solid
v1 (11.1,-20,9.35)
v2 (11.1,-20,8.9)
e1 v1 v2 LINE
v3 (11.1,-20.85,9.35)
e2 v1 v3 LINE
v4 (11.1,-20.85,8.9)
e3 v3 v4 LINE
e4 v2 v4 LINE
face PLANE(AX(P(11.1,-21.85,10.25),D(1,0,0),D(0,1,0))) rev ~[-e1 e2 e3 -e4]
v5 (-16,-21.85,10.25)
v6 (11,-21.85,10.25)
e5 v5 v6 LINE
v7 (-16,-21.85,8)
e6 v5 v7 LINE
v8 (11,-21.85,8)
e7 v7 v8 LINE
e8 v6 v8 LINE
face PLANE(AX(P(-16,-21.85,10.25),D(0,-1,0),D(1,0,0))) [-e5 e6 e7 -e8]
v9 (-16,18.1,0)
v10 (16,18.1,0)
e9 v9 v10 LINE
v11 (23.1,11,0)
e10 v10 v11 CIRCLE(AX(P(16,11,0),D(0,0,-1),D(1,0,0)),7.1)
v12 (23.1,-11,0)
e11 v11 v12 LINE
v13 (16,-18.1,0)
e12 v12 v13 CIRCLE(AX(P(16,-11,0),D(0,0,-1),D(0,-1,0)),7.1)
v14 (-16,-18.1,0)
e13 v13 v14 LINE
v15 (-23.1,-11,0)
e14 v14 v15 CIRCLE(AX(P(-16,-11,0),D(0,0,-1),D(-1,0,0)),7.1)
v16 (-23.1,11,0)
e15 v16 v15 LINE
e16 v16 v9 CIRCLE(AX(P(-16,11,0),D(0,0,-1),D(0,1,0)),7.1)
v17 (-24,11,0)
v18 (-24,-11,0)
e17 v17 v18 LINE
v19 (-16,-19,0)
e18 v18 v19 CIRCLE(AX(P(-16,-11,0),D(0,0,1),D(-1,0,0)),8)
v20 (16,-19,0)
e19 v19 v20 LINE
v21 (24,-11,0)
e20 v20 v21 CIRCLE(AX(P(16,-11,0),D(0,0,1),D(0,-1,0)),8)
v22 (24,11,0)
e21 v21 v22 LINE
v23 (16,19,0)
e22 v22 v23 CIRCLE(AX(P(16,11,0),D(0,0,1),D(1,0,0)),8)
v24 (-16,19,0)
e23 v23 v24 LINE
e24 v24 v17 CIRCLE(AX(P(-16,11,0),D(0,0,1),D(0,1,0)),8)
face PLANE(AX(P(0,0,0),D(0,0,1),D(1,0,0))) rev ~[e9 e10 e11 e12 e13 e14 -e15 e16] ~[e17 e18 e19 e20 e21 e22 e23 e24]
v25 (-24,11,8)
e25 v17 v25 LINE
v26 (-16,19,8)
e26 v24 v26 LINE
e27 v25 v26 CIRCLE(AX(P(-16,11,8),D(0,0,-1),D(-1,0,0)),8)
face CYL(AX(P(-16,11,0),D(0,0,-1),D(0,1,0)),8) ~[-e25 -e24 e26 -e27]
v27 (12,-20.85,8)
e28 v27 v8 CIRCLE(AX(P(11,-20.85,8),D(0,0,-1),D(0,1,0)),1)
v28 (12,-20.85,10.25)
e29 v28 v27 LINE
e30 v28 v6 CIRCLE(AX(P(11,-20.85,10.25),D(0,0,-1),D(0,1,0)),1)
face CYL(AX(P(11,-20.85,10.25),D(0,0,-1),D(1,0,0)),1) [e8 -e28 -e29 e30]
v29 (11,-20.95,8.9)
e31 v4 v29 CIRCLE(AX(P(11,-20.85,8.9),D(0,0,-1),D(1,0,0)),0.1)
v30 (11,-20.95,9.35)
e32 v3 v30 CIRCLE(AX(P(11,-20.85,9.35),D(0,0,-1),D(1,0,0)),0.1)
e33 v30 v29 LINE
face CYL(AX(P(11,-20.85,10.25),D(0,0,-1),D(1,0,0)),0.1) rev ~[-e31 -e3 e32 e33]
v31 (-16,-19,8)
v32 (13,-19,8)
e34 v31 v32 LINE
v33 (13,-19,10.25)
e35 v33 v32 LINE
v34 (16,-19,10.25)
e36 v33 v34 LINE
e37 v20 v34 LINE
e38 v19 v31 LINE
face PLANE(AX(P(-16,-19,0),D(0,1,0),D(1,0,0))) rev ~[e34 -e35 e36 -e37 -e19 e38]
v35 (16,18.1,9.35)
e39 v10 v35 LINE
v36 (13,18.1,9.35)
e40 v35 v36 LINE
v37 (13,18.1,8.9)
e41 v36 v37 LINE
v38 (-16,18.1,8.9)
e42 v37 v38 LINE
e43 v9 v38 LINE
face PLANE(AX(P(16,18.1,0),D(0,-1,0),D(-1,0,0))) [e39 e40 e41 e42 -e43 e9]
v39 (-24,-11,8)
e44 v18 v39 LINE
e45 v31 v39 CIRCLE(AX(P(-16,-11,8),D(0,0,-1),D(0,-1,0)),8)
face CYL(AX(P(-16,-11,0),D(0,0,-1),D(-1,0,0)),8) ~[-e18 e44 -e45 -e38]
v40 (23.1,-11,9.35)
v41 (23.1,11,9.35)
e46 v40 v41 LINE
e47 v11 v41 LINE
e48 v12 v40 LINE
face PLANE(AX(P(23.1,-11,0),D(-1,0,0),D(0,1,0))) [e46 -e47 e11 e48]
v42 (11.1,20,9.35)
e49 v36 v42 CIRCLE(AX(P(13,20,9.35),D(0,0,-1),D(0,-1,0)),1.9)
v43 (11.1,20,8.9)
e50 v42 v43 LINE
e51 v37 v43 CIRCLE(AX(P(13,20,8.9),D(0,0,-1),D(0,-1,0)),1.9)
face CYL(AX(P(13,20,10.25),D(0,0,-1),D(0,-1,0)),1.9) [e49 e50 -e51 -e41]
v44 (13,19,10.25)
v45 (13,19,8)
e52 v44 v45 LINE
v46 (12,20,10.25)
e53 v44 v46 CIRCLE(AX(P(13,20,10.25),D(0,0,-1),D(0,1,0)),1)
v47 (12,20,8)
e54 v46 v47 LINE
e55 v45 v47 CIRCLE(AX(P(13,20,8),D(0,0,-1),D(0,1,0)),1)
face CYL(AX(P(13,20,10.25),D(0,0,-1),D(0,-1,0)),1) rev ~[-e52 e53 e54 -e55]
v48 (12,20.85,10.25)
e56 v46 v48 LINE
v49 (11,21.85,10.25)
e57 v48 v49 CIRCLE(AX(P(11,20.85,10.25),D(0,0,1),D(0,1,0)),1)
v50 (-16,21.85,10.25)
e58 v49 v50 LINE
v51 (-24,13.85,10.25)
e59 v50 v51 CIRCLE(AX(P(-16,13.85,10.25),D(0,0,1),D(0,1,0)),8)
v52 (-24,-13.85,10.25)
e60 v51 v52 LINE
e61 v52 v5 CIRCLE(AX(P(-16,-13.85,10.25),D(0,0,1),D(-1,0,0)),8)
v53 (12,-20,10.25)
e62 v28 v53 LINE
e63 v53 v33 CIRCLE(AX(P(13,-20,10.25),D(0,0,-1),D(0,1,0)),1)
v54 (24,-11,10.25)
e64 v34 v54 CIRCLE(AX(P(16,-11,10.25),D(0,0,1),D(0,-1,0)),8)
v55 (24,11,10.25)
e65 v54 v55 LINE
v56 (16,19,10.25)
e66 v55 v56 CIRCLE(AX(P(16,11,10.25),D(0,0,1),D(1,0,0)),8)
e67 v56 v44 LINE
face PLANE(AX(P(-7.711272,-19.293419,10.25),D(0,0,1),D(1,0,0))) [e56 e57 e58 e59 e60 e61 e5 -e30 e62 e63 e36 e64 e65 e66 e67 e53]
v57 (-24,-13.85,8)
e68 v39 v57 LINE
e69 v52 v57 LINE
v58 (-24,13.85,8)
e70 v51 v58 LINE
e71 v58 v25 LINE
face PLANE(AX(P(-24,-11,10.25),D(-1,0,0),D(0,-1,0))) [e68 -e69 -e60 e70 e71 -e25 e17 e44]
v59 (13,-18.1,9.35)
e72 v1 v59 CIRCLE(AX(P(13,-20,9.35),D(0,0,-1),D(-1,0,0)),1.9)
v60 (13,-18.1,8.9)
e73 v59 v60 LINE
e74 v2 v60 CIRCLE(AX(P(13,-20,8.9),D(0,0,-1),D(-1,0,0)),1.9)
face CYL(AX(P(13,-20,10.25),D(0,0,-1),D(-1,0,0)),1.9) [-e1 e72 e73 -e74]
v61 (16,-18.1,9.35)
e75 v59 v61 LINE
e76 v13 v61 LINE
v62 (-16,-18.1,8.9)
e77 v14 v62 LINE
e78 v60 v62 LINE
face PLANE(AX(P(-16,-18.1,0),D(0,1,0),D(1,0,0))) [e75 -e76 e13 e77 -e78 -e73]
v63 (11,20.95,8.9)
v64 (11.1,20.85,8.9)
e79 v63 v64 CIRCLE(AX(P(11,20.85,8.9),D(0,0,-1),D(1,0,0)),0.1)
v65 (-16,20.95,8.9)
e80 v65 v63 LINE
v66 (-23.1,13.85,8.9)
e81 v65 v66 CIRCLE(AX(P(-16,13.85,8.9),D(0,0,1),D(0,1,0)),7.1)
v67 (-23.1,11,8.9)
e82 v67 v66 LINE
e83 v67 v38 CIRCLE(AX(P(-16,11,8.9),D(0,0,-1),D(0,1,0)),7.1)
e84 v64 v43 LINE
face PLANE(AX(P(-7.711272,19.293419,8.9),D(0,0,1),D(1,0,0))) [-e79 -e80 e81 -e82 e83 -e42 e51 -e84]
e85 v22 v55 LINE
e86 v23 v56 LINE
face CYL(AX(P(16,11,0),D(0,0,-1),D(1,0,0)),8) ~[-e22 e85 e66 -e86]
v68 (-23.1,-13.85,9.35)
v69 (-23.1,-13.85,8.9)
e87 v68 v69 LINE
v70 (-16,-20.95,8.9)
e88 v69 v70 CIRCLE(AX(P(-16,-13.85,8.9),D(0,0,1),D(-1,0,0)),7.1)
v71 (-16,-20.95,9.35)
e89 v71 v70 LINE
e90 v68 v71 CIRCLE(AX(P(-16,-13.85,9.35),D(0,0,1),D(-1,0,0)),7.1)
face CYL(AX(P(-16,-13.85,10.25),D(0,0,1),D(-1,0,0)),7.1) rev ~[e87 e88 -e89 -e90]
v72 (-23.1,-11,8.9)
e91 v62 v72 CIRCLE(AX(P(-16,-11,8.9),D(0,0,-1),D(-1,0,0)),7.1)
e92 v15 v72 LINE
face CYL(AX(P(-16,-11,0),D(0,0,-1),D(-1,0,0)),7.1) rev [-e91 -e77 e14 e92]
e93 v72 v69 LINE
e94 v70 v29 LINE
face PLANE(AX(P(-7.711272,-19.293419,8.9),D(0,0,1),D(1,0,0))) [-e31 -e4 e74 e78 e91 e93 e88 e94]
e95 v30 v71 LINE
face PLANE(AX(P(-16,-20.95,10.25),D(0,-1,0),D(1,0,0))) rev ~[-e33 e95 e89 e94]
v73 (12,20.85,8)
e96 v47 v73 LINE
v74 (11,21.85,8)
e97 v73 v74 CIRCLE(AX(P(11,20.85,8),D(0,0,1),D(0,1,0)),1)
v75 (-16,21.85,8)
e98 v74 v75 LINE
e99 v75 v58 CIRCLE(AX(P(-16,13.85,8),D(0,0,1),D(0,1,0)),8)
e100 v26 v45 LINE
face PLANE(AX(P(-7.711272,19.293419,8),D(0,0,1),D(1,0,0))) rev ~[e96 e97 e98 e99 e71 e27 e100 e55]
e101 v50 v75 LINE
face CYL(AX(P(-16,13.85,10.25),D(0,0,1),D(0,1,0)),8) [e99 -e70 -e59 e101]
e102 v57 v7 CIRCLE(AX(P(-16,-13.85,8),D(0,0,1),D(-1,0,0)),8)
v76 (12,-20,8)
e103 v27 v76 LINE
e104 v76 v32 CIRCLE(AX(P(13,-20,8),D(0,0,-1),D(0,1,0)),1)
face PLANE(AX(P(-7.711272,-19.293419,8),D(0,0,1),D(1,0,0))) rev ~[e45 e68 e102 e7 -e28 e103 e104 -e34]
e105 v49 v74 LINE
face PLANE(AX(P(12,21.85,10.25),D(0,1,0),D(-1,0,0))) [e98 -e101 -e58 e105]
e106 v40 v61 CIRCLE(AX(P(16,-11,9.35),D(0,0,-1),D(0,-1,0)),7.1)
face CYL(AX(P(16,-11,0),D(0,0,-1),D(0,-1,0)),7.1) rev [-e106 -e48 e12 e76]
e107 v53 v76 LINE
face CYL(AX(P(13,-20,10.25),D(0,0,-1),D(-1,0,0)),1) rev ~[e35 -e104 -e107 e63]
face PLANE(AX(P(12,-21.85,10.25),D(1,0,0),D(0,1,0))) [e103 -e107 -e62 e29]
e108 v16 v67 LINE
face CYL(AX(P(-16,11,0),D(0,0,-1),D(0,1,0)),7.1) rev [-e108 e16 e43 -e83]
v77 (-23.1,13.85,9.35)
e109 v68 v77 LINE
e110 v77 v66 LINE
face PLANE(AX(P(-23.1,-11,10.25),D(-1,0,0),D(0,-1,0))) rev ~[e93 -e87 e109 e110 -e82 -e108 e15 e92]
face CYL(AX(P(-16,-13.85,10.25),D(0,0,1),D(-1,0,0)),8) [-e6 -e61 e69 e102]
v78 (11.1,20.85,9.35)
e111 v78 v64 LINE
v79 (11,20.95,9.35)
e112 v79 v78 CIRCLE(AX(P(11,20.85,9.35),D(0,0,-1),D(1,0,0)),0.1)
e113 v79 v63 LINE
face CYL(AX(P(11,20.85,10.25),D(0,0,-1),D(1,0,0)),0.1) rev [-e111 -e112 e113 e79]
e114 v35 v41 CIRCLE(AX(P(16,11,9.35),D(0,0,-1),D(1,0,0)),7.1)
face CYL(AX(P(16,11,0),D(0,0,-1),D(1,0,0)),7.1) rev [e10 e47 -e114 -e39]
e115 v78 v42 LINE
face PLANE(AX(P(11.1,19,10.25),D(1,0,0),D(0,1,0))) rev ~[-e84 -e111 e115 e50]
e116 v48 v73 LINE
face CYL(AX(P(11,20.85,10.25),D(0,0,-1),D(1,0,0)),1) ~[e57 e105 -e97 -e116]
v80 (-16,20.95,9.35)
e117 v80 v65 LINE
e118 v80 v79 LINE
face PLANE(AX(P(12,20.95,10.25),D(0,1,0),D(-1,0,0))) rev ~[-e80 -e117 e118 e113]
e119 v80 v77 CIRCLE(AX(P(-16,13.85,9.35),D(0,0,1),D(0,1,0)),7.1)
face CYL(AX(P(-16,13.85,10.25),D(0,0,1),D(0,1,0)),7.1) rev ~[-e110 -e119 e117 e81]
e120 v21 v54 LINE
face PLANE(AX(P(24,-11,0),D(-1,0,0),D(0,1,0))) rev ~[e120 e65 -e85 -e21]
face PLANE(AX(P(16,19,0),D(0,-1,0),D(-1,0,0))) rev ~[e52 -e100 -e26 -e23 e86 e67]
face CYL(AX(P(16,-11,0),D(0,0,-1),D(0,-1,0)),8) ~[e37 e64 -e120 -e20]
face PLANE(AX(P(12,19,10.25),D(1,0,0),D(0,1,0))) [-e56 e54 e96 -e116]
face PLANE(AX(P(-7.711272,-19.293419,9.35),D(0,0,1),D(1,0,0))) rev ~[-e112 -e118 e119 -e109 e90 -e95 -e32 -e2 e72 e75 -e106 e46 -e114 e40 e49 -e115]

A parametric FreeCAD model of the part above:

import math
import FreeCAD as App
import Part
import Sketcher
from FreeCAD import Vector


def edges_at(feature, points):
    """Names of the edges that pass closest to the given points."""
    edges = feature.Shape.Edges
    near = lambda p: min(range(len(edges)), key=lambda i: edges[i].distToShape(Part.Vertex(*p))[0])
    return sorted({f"Edge{near(p) + 1}" for p in points})


def faces_at(feature, points):
    """Names of the faces that lie closest to the given points."""
    faces = feature.Shape.Faces
    near = lambda p: min(range(len(faces)), key=lambda i: faces[i].distToShape(Part.Vertex(*p))[0])
    return sorted({f"Face{near(p) + 1}" for p in points})

doc = App.newDocument("Part")
body = doc.addObject("PartDesign::Body", "Body")

# Sketch on XY plane
sketch1 = body.newObject("Sketcher::SketchObject", "Sketch")
sketch1.AttachmentSupport = (doc.getObject("XY_Plane"), [""])
sketch1.MapMode = "FlatFace"
sketch1.addGeometry(Part.LineSegment(Vector(16, 19, 0), Vector(-16, 19, 0)), False)
sketch1.addGeometry(Part.ArcOfCircle(Part.Circle(Vector(-16, 11, 0), Vector(0, 0, 1), 8), math.radians(90), math.radians(180)), False)
sketch1.addGeometry(Part.LineSegment(Vector(-24, 11, 0), Vector(-24, -11, 0)), False)
sketch1.addGeometry(Part.ArcOfCircle(Part.Circle(Vector(-16, -11, 0), Vector(0, 0, 1), 8), math.radians(180), math.radians(270)), False)
sketch1.addGeometry(Part.LineSegment(Vector(-16, -19, 0), Vector(16, -19, 0)), False)
sketch1.addGeometry(Part.ArcOfCircle(Part.Circle(Vector(16, -11, 0), Vector(0, 0, 1), 8), math.radians(-90), math.radians(0)), False)
sketch1.addGeometry(Part.LineSegment(Vector(24, -11, 0), Vector(24, 11, 0)), False)
sketch1.addGeometry(Part.ArcOfCircle(Part.Circle(Vector(16, 11, 0), Vector(0, 0, 1), 8), math.radians(0), math.radians(90)), False)
sketch1.addConstraint(Sketcher.Constraint("Tangent", 0, 2, 1, 1))
sketch1.addConstraint(Sketcher.Constraint("Tangent", 1, 2, 2, 1))
sketch1.addConstraint(Sketcher.Constraint("Tangent", 2, 2, 3, 1))
sketch1.addConstraint(Sketcher.Constraint("Tangent", 3, 2, 4, 1))
sketch1.addConstraint(Sketcher.Constraint("Tangent", 4, 2, 5, 1))
sketch1.addConstraint(Sketcher.Constraint("Tangent", 5, 2, 6, 1))
sketch1.addConstraint(Sketcher.Constraint("Tangent", 6, 2, 7, 1))
sketch1.addConstraint(Sketcher.Constraint("Tangent", 7, 2, 0, 1))
sketch1.addConstraint(Sketcher.Constraint("Horizontal", 0))
sketch1.addConstraint(Sketcher.Constraint("Vertical", 2))
sketch1.addConstraint(Sketcher.Constraint("Horizontal", 4))
sketch1.addConstraint(Sketcher.Constraint("Vertical", 6))
sketch1.addConstraint(Sketcher.Constraint("Equal", 1, 3))
sketch1.addConstraint(Sketcher.Constraint("Equal", 3, 5))
sketch1.addConstraint(Sketcher.Constraint("Equal", 5, 7))
sketch1.addConstraint(Sketcher.Constraint("Symmetric", 1, 3, 5, 3, -1, 1))
sketch1.addConstraint(Sketcher.Constraint("Radius", 1, 8.0))
sketch1.addConstraint(Sketcher.Constraint("DistanceX", 0, 2, 0, 1, 32.0))
sketch1.addConstraint(Sketcher.Constraint("DistanceY", 2, 2, 2, 1, 22.0))
pad1 = body.newObject("PartDesign::Pad", "Pad")
pad1.Profile = sketch1
pad1.Length = 10.25

# Sketch on XY plane
sketch2 = body.newObject("Sketcher::SketchObject", "Sketch001")
sketch2.AttachmentSupport = (doc.getObject("XY_Plane"), [""])
sketch2.MapMode = "FlatFace"
sketch2.AttachmentOffset = App.Placement(Vector(0, 0, 10.25), App.Rotation())
sketch2.addGeometry(Part.LineSegment(Vector(12, -21.9, 0), Vector(12, -19, 0)), False)
sketch2.addGeometry(Part.LineSegment(Vector(12, -19, 0), Vector(-16, -19, 0)), False)
sketch2.addGeometry(Part.ArcOfCircle(Part.Circle(Vector(-16, -11, 0), Vector(0, 0, 1), 8), math.radians(180), math.radians(270)), False)
sketch2.addGeometry(Part.LineSegment(Vector(-24, -11, 0), Vector(-24, -13.8, 0)), False)
sketch2.addGeometry(Part.ArcOfCircle(Part.Circle(Vector(-16, -13.8, 0), Vector(0, 0, 1), 8), math.radians(180), math.radians(270)), False)
sketch2.addGeometry(Part.LineSegment(Vector(-16, -21.9, 0), Vector(12, -21.9, 0)), False)
sketch2.addGeometry(Part.LineSegment(Vector(12, 21.9, 0), Vector(-16, 21.9, 0)), False)
sketch2.addGeometry(Part.ArcOfCircle(Part.Circle(Vector(-16, 13.8, 0), Vector(0, 0, 1), 8), math.radians(90), math.radians(180)), False)
sketch2.addGeometry(Part.LineSegment(Vector(-24, 13.8, 0), Vector(-24, 11, 0)), False)
sketch2.addGeometry(Part.ArcOfCircle(Part.Circle(Vector(-16, 11, 0), Vector(0, 0, 1), 8), math.radians(90), math.radians(180)), False)
sketch2.addGeometry(Part.LineSegment(Vector(-16, 19, 0), Vector(12, 19, 0)), False)
sketch2.addGeometry(Part.LineSegment(Vector(12, 19, 0), Vector(12, 21.9, 0)), False)
sketch2.addConstraint(Sketcher.Constraint("Coincident", 0, 2, 1, 1))
sketch2.addConstraint(Sketcher.Constraint("Tangent", 1, 2, 2, 2))
sketch2.addConstraint(Sketcher.Constraint("Tangent", 2, 1, 3, 1))
sketch2.addConstraint(Sketcher.Constraint("Tangent", 3, 2, 4, 1))
sketch2.addConstraint(Sketcher.Constraint("Tangent", 4, 2, 5, 1))
sketch2.addConstraint(Sketcher.Constraint("Coincident", 5, 2, 0, 1))
sketch2.addConstraint(Sketcher.Constraint("Tangent", 6, 2, 7, 1))
sketch2.addConstraint(Sketcher.Constraint("Tangent", 7, 2, 8, 1))
sketch2.addConstraint(Sketcher.Constraint("Tangent", 8, 2, 9, 2))
sketch2.addConstraint(Sketcher.Constraint("Tangent", 9, 1, 10, 1))
sketch2.addConstraint(Sketcher.Constraint("Coincident", 10, 2, 11, 1))
sketch2.addConstraint(Sketcher.Constraint("Coincident", 11, 2, 6, 1))
sketch2.addConstraint(Sketcher.Constraint("Vertical", 0))
sketch2.addConstraint(Sketcher.Constraint("Horizontal", 1))
sketch2.addConstraint(Sketcher.Constraint("Vertical", 3))
sketch2.addConstraint(Sketcher.Constraint("Horizontal", 5))
sketch2.addConstraint(Sketcher.Constraint("Horizontal", 6))
sketch2.addConstraint(Sketcher.Constraint("Vertical", 8))
sketch2.addConstraint(Sketcher.Constraint("Horizontal", 10))
sketch2.addConstraint(Sketcher.Constraint("Vertical", 11))
sketch2.addConstraint(Sketcher.Constraint("Equal", 2, 4))
sketch2.addConstraint(Sketcher.Constraint("Equal", 4, 7))
sketch2.addConstraint(Sketcher.Constraint("Equal", 7, 9))
sketch2.addConstraint(Sketcher.Constraint("Symmetric", 4, 3, 7, 3, -1))
sketch2.addConstraint(Sketcher.Constraint("Symmetric", 0, 2, 10, 2, -1))
sketch2.addConstraint(Sketcher.Constraint("Radius", 2, 8.0))
sketch2.addConstraint(Sketcher.Constraint("DistanceX", 1, 2, 1, 1, 28.0))
sketch2.addConstraint(Sketcher.Constraint("DistanceX", 2, 3, -1, 1, 16.0))
sketch2.addConstraint(Sketcher.Constraint("DistanceY", 2, 3, -1, 1, 11.0))
sketch2.addConstraint(Sketcher.Constraint("DistanceY", 0, 1, 0, 2, 2.85))
pad2 = body.newObject("PartDesign::Pad", "Pad001")
pad2.Profile = sketch2
pad2.Length = 2.25
pad2.Reversed = True
doc.recompute()

fillet = body.newObject("PartDesign::Fillet", "Fillet")
fillet.Base = (pad2, edges_at(pad2, [
    (12, -21.85, 9.125),
    (12, 21.85, 9.125),
    (12, 19, 9.125),
    (12, -19, 9.125),
]))
fillet.Radius = 1
doc.recompute()

thickness = body.newObject("PartDesign::Thickness", "Thickness")
thickness.Base = (fillet, faces_at(fillet, [(0, 0, 0)]))
thickness.Value = 0.9
thickness.Reversed = True
thickness.Join = "Intersection"

doc.recompute()
